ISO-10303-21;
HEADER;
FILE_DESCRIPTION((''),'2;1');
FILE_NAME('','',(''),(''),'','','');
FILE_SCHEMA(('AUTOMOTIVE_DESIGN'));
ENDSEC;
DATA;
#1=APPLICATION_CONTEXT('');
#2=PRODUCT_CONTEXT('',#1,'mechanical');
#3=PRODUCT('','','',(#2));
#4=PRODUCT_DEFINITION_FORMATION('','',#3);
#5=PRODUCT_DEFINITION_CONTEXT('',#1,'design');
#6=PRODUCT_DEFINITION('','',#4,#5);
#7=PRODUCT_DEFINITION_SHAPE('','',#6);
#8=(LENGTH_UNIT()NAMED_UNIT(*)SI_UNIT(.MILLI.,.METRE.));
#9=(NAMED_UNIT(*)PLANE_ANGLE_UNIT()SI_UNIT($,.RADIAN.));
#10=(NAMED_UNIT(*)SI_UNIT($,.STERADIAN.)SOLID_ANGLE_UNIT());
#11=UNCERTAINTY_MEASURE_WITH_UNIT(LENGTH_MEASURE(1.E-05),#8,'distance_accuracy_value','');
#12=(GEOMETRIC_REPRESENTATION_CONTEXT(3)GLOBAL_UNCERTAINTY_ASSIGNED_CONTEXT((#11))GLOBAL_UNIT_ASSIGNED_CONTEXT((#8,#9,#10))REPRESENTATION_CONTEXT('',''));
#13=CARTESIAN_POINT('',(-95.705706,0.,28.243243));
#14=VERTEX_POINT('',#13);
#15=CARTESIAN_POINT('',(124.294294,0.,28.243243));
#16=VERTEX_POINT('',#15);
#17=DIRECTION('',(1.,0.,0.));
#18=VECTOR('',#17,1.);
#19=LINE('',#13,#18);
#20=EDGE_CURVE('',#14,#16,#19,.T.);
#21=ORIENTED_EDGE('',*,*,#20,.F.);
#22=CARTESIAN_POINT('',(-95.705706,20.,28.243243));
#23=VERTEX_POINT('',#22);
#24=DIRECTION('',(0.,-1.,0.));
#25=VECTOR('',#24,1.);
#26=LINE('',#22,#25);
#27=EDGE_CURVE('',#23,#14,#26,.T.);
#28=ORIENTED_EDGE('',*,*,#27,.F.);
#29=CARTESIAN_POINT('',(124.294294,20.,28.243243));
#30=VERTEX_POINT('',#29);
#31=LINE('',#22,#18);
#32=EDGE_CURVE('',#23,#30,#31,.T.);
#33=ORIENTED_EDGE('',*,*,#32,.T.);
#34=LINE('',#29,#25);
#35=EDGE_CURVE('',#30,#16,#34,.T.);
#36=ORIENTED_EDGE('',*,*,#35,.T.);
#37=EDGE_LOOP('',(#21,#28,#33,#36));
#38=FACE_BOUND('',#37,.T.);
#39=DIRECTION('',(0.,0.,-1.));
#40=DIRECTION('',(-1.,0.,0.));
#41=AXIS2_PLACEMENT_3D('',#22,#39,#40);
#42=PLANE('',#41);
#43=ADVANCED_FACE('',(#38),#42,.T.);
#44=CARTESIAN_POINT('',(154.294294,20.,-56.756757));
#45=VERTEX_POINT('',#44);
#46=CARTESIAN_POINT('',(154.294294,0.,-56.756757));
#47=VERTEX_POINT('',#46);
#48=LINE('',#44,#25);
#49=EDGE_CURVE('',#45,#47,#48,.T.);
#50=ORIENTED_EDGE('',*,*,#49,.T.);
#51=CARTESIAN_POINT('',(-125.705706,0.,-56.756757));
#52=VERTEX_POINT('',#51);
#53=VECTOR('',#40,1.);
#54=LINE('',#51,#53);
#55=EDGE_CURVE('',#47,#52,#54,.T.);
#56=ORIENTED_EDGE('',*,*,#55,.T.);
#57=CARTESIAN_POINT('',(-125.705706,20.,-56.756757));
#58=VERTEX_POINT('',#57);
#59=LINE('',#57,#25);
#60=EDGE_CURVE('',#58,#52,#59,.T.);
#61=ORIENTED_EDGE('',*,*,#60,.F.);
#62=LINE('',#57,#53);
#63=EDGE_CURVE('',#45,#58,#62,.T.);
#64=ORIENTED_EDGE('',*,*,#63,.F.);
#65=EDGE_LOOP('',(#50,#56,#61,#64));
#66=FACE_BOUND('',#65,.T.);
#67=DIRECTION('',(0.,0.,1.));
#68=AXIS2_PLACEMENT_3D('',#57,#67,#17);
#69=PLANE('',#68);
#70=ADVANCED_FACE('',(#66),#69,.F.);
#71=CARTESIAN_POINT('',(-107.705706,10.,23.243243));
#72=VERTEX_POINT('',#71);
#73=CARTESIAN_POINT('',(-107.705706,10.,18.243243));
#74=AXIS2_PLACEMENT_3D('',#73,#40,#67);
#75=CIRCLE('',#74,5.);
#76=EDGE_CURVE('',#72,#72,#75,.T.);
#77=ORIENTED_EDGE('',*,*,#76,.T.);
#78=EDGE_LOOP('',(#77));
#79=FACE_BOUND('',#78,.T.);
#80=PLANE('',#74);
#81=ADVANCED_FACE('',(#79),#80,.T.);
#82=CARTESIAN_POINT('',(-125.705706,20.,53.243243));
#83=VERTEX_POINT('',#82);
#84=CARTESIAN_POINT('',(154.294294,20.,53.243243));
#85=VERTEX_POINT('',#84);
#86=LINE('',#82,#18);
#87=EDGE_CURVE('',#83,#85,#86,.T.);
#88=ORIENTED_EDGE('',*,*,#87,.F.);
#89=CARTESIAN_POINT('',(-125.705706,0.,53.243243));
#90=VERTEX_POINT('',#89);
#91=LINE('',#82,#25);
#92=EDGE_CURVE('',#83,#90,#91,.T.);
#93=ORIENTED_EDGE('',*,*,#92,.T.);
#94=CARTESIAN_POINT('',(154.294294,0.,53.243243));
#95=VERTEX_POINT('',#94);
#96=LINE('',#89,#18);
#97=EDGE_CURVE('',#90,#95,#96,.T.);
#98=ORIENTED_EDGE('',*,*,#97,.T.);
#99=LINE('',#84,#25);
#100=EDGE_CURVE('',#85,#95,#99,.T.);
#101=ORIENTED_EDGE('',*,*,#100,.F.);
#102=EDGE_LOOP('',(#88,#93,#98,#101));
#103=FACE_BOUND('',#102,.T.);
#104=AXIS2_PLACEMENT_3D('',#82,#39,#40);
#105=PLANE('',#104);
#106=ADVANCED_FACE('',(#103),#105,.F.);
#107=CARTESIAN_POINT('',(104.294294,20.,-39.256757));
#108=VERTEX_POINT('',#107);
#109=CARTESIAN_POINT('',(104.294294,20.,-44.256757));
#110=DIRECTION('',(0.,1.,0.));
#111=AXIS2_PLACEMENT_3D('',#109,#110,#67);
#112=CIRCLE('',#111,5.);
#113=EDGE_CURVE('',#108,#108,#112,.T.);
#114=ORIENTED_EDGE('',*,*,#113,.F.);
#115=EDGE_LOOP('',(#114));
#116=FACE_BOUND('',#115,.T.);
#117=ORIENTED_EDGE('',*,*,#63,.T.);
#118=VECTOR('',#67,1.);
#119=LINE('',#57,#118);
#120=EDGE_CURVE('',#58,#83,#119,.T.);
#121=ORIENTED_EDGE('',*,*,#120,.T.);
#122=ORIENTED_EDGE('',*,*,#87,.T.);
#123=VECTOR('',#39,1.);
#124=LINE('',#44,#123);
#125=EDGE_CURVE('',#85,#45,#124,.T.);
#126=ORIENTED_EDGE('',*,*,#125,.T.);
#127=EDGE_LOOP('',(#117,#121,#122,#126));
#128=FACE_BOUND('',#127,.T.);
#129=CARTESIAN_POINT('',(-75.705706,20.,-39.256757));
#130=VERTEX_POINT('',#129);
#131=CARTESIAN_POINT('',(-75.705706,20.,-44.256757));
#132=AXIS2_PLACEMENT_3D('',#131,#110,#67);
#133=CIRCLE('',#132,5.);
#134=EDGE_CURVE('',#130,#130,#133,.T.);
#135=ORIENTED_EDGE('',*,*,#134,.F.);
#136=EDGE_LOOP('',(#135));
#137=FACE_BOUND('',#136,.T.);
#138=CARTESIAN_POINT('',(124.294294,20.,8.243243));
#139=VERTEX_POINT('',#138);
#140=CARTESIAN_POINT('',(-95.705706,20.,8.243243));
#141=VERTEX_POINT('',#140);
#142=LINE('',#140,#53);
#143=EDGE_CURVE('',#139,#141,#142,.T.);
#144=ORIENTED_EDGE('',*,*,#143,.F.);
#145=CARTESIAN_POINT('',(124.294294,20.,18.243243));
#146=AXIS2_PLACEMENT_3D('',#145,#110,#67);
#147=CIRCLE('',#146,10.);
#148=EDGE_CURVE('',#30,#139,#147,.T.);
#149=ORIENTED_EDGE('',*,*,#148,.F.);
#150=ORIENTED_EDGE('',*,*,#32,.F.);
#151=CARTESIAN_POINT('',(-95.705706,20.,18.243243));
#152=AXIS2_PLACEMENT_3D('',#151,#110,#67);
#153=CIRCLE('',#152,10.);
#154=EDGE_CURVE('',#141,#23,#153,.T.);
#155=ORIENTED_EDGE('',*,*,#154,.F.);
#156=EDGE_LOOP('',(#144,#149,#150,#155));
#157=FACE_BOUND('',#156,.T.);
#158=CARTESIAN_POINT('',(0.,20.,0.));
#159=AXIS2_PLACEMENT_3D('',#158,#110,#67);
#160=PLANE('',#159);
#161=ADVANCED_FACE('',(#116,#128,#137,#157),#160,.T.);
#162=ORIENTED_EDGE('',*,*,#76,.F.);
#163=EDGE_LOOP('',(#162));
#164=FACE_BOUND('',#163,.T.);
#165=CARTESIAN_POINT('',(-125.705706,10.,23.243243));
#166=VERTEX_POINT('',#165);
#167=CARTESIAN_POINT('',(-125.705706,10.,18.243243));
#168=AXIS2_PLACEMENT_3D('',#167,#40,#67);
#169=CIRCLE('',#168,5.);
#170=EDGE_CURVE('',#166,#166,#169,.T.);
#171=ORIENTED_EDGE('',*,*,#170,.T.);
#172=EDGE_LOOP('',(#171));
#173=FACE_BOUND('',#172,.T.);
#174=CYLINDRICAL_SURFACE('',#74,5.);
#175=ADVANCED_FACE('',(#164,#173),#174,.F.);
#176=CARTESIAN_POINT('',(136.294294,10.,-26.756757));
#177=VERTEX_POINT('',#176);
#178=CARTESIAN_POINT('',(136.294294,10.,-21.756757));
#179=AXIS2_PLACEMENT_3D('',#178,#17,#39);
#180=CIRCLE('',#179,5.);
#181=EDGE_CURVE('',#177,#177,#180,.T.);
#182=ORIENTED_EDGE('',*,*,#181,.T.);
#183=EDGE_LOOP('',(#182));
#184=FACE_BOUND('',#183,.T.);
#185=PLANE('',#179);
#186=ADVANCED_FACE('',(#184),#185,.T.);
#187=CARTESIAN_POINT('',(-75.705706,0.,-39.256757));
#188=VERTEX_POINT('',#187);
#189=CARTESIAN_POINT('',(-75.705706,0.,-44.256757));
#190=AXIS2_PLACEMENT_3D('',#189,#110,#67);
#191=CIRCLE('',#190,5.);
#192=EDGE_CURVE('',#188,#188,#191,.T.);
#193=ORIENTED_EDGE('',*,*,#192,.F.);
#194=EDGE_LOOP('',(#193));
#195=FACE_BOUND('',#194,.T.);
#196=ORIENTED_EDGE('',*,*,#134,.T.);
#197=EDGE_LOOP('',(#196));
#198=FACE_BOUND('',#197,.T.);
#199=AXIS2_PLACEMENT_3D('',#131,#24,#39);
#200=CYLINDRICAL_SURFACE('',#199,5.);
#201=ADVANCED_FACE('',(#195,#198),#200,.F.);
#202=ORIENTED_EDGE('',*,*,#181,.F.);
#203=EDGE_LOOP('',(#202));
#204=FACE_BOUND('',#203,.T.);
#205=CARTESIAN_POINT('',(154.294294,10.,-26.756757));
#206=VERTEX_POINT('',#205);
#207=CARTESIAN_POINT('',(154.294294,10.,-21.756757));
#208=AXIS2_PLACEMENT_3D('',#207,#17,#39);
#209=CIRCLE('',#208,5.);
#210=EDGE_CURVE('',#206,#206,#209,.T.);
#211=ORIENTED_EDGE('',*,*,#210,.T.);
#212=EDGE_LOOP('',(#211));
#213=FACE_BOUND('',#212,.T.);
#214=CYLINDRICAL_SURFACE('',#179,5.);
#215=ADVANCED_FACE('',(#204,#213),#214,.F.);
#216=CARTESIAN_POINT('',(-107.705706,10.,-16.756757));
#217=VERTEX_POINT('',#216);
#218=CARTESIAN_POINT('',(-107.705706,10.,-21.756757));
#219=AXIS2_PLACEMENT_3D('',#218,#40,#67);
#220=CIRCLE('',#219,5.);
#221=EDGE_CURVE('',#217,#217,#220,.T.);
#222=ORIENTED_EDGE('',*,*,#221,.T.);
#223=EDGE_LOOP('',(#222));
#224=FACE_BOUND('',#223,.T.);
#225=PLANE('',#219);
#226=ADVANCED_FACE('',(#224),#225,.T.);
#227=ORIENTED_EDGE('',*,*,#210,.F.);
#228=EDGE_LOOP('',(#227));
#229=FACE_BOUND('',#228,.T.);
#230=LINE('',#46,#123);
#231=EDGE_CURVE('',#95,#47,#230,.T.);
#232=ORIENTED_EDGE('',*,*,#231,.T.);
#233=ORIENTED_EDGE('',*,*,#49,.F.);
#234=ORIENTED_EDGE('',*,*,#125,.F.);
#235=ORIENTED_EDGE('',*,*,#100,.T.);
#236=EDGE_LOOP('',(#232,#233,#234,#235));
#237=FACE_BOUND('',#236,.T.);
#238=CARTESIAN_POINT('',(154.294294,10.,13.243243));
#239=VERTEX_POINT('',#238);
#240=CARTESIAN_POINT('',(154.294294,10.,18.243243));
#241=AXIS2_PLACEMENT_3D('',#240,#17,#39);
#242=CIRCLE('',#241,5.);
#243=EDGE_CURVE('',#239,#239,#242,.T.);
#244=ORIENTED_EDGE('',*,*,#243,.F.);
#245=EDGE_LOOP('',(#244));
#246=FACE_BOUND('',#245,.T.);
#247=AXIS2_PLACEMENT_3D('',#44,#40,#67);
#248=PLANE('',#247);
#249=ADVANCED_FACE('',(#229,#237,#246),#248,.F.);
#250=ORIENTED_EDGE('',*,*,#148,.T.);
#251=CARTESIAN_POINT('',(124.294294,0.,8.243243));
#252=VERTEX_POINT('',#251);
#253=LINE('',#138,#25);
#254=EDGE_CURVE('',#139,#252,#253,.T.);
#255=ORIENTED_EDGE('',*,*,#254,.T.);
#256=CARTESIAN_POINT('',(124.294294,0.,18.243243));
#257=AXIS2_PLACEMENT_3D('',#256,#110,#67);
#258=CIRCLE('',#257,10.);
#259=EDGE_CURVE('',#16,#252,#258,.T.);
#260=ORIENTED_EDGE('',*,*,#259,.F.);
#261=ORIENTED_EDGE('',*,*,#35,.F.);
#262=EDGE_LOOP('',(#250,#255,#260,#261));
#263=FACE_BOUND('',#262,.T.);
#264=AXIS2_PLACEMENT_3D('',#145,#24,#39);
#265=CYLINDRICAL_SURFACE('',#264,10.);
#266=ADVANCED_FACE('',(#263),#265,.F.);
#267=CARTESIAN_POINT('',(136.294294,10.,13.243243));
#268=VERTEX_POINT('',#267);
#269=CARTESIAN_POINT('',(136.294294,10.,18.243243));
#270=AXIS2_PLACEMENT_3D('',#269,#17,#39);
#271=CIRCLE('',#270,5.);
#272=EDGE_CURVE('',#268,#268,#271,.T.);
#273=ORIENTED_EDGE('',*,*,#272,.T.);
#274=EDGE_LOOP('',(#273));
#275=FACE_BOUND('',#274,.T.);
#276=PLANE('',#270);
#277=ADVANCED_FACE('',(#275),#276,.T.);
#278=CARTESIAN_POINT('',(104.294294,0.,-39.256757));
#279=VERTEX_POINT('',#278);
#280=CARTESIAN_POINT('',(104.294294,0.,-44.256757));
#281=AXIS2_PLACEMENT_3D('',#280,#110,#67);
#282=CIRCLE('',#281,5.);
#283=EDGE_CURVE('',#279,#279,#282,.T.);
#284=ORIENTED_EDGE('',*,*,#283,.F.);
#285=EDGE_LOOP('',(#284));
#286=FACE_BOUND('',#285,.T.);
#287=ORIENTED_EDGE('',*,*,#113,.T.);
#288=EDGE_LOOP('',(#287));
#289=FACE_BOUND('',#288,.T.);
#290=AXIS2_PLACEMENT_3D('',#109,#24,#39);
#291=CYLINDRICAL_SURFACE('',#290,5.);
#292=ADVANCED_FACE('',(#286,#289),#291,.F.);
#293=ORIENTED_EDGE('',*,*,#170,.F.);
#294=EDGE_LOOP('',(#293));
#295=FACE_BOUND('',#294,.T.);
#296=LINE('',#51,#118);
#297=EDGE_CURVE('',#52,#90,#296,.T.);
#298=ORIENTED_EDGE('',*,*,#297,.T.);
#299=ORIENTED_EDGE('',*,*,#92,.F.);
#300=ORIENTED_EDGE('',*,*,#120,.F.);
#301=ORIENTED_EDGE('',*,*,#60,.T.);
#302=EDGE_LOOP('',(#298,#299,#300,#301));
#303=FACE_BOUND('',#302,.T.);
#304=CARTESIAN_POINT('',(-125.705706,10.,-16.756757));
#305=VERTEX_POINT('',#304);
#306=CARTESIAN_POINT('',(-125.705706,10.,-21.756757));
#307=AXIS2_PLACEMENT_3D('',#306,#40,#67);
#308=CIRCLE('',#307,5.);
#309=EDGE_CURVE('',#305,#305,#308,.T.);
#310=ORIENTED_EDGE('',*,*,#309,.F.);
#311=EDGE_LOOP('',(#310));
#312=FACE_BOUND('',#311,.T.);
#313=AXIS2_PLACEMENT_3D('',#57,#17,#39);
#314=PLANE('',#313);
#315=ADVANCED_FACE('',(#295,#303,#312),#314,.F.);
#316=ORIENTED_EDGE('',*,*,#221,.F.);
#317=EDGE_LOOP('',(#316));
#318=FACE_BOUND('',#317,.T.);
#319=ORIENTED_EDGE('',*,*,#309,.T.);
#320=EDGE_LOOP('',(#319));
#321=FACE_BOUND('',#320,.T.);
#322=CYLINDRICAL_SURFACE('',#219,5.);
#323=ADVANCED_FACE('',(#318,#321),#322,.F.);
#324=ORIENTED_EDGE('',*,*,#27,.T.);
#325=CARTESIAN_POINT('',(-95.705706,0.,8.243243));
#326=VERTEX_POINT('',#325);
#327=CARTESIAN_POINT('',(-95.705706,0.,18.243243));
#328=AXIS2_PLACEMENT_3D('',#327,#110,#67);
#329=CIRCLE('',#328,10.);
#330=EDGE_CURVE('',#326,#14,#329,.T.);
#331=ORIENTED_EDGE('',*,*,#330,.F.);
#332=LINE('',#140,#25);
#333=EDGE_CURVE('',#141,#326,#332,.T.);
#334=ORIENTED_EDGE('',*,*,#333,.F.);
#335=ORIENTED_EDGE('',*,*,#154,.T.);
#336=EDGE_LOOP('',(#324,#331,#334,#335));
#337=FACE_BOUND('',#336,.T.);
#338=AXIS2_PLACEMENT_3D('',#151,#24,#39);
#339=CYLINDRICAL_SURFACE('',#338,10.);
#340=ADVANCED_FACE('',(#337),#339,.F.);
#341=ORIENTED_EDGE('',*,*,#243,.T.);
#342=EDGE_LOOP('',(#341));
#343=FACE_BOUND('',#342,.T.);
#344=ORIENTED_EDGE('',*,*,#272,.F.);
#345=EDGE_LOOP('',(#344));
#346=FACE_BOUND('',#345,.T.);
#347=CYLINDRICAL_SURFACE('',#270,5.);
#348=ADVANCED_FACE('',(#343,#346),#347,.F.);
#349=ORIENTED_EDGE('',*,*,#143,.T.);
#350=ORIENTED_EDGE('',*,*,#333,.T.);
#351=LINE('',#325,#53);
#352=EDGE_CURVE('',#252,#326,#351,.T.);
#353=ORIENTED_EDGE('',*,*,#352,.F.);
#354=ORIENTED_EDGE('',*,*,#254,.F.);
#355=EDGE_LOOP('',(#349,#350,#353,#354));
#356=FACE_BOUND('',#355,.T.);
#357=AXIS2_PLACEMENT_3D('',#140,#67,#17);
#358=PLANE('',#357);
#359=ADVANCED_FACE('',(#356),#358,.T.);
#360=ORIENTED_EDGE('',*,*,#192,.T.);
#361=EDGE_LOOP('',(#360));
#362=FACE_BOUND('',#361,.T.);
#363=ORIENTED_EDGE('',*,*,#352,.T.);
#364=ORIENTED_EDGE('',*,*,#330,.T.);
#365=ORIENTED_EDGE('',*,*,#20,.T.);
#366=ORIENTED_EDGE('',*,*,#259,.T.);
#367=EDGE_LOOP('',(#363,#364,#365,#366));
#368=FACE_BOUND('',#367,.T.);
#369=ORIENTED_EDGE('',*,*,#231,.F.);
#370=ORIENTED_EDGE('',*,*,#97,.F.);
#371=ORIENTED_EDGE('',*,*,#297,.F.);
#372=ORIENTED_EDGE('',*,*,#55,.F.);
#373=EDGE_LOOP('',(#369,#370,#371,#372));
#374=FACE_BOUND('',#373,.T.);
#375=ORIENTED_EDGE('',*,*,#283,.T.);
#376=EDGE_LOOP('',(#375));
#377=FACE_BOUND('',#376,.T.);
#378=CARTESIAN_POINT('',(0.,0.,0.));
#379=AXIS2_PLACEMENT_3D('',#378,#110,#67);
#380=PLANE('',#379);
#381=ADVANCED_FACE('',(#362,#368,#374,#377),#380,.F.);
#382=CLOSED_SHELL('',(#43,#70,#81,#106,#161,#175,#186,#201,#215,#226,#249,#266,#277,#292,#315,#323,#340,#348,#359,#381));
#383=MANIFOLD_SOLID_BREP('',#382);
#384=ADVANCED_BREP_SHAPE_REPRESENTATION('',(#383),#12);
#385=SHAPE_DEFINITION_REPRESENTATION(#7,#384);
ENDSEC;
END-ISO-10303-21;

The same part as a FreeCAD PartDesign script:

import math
import FreeCAD as App
import Part
import Sketcher
from FreeCAD import Vector
Q = App.Units.Quantity


def add_polygon(sketch, points):
    """Adds a closed chain of lines whose ends are joined by coincident constraints."""
    first, n = sketch.GeometryCount, len(points)
    for a, b in zip(points, points[1:] + points[:1]):
        sketch.addGeometry(Part.LineSegment(App.Vector(*a, 0), App.Vector(*b, 0)), False)
    for i in range(n):
        sketch.addConstraint(Sketcher.Constraint("Coincident", first + i, 2, first + (i + 1) % n, 1))

doc = App.newDocument("Part")
body = doc.addObject("PartDesign::Body", "Body")

sketch1 = body.newObject("Sketcher::SketchObject", "Sketch")
sketch1.AttachmentSupport = (doc.getObject("XZ_Plane"), [""])
sketch1.MapMode = "FlatFace"
add_polygon(sketch1, [(-125.705706, -56.756757), (-125.705706, 53.243243), (154.294294, 53.243243), (154.294294, -56.756757)])
sketch1.addConstraint(Sketcher.Constraint("Vertical", 0))
sketch1.addConstraint(Sketcher.Constraint("Horizontal", 1))
sketch1.addConstraint(Sketcher.Constraint("Vertical", 2))
sketch1.addConstraint(Sketcher.Constraint("Horizontal", 3))
sketch1.addConstraint(Sketcher.Constraint("DistanceX", 1, 1, 1, 2, Q("280 mm")))
sketch1.addConstraint(Sketcher.Constraint("DistanceY", 0, 1, 0, 2, Q("110 mm")))
sketch1.addConstraint(Sketcher.Constraint("DistanceX", 0, 2, -1, 1, Q("125.705706 mm")))
sketch1.addConstraint(Sketcher.Constraint("DistanceY", -1, 1, 0, 2, Q("53.243243 mm")))
pad1 = body.newObject("PartDesign::Pad", "Pad")
pad1.Profile = sketch1
pad1.Length = 20
pad1.Reversed = True

sketch2 = body.newObject("Sketcher::SketchObject", "Sketch001")
sketch2.AttachmentSupport = (doc.getObject("XZ_Plane"), [""])
sketch2.MapMode = "FlatFace"
sketch2.addGeometry(Part.LineSegment(Vector(124.294294, 8.243243, 0), Vector(-95.705706, 8.243243, 0)), False)
sketch2.addGeometry(Part.ArcOfCircle(Part.Circle(Vector(-95.705706, 18.243243, 0), Vector(0, 0, 1), 10), math.radians(90), math.radians(270)), False)
sketch2.addGeometry(Part.LineSegment(Vector(-95.705706, 28.243243, 0), Vector(124.294294, 28.243243, 0)), False)
sketch2.addGeometry(Part.ArcOfCircle(Part.Circle(Vector(124.294294, 18.243243, 0), Vector(0, 0, 1), 10), math.radians(-90), math.radians(90)), False)
sketch2.addConstraint(Sketcher.Constraint("Tangent", 0, 2, 1, 2))
sketch2.addConstraint(Sketcher.Constraint("Tangent", 1, 1, 2, 1))
sketch2.addConstraint(Sketcher.Constraint("Tangent", 2, 2, 3, 2))
sketch2.addConstraint(Sketcher.Constraint("Tangent", 3, 1, 0, 1))
sketch2.addConstraint(Sketcher.Constraint("Horizontal", 0))
sketch2.addConstraint(Sketcher.Constraint("Horizontal", 2))
sketch2.addConstraint(Sketcher.Constraint("Radius", 1, Q("10 mm")))
sketch2.addConstraint(Sketcher.Constraint("DistanceX", 0, 2, 0, 1, Q("220 mm")))
sketch2.addConstraint(Sketcher.Constraint("DistanceX", 1, 3, -1, 1, Q("95.705706 mm")))
sketch2.addConstraint(Sketcher.Constraint("DistanceY", -1, 1, 1, 3, Q("18.243243 mm")))
pocket1 = body.newObject("PartDesign::Pocket", "Pocket")
pocket1.Profile = sketch2
pocket1.Length = 20

sketch3 = body.newObject("Sketcher::SketchObject", "Sketch002")
sketch3.AttachmentSupport = (doc.getObject("XZ_Plane"), [""])
sketch3.MapMode = "FlatFace"
sketch3.addGeometry(Part.Circle(Vector(104.294294, -44.256757, 0), Vector(0, 0, 1), 5), False)
sketch3.addGeometry(Part.Circle(Vector(-75.705706, -44.256757, 0), Vector(0, 0, 1), 5), False)
sketch3.addConstraint(Sketcher.Constraint("Equal", 0, 1))
sketch3.addConstraint(Sketcher.Constraint("Horizontal", 0, 3, 1, 3))
sketch3.addConstraint(Sketcher.Constraint("Diameter", 0, Q("10 mm")))
sketch3.addConstraint(Sketcher.Constraint("DistanceX", 1, 3, 0, 3, Q("180 mm")))
sketch3.addConstraint(Sketcher.Constraint("DistanceX", -1, 1, 0, 3, Q("104.294294 mm")))
sketch3.addConstraint(Sketcher.Constraint("DistanceY", 0, 3, -1, 1, Q("44.256757 mm")))
pocket2 = body.newObject("PartDesign::Pocket", "Pocket001")
pocket2.Profile = sketch3
pocket2.Length = 20

sketch4 = body.newObject("Sketcher::SketchObject", "Sketch003")
sketch4.AttachmentSupport = (doc.getObject("YZ_Plane"), [""])
sketch4.MapMode = "FlatFace"
sketch4.AttachmentOffset = App.Placement(Vector(0, 0, -125.705706), App.Rotation())
sketch4.addGeometry(Part.Circle(Vector(10, 18.243243, 0), Vector(0, 0, 1), 5), False)
sketch4.addGeometry(Part.Circle(Vector(10, -21.756757, 0), Vector(0, 0, 1), 5), False)
sketch4.addConstraint(Sketcher.Constraint("Equal", 0, 1))
sketch4.addConstraint(Sketcher.Constraint("Vertical", 0, 3, 1, 3))
sketch4.addConstraint(Sketcher.Constraint("Diameter", 0, Q("10 mm")))
sketch4.addConstraint(Sketcher.Constraint("DistanceX", -1, 1, 0, 3, Q("10 mm")))
sketch4.addConstraint(Sketcher.Constraint("DistanceY", 1, 3, 0, 3, Q("40 mm")))
sketch4.addConstraint(Sketcher.Constraint("DistanceY", -1, 1, 0, 3, Q("18.243243 mm")))
pocket3 = body.newObject("PartDesign::Pocket", "Pocket002")
pocket3.Profile = sketch4
pocket3.Length = 18
pocket3.Reversed = True

sketch5 = body.newObject("Sketcher::SketchObject", "Sketch004")
sketch5.AttachmentSupport = (doc.getObject("YZ_Plane"), [""])
sketch5.MapMode = "FlatFace"
sketch5.AttachmentOffset = App.Placement(Vector(0, 0, 154.294294), App.Rotation())
sketch5.addGeometry(Part.Circle(Vector(10, -21.756757, 0), Vector(0, 0, 1), 5), False)
sketch5.addGeometry(Part.Circle(Vector(10, 18.243243, 0), Vector(0, 0, 1), 5), False)
sketch5.addConstraint(Sketcher.Constraint("Equal", 0, 1))
sketch5.addConstraint(Sketcher.Constraint("Vertical", 0, 3, 1, 3))
sketch5.addConstraint(Sketcher.Constraint("Diameter", 0, Q("10 mm")))
sketch5.addConstraint(Sketcher.Constraint("DistanceX", -1, 1, 0, 3, Q("10 mm")))
sketch5.addConstraint(Sketcher.Constraint("DistanceY", 0, 3, 1, 3, Q("40 mm")))
sketch5.addConstraint(Sketcher.Constraint("DistanceY", 0, 3, -1, 1, Q("21.756757 mm")))
pocket4 = body.newObject("PartDesign::Pocket", "Pocket003")
pocket4.Profile = sketch5
pocket4.Length = 18

doc.recompute()
